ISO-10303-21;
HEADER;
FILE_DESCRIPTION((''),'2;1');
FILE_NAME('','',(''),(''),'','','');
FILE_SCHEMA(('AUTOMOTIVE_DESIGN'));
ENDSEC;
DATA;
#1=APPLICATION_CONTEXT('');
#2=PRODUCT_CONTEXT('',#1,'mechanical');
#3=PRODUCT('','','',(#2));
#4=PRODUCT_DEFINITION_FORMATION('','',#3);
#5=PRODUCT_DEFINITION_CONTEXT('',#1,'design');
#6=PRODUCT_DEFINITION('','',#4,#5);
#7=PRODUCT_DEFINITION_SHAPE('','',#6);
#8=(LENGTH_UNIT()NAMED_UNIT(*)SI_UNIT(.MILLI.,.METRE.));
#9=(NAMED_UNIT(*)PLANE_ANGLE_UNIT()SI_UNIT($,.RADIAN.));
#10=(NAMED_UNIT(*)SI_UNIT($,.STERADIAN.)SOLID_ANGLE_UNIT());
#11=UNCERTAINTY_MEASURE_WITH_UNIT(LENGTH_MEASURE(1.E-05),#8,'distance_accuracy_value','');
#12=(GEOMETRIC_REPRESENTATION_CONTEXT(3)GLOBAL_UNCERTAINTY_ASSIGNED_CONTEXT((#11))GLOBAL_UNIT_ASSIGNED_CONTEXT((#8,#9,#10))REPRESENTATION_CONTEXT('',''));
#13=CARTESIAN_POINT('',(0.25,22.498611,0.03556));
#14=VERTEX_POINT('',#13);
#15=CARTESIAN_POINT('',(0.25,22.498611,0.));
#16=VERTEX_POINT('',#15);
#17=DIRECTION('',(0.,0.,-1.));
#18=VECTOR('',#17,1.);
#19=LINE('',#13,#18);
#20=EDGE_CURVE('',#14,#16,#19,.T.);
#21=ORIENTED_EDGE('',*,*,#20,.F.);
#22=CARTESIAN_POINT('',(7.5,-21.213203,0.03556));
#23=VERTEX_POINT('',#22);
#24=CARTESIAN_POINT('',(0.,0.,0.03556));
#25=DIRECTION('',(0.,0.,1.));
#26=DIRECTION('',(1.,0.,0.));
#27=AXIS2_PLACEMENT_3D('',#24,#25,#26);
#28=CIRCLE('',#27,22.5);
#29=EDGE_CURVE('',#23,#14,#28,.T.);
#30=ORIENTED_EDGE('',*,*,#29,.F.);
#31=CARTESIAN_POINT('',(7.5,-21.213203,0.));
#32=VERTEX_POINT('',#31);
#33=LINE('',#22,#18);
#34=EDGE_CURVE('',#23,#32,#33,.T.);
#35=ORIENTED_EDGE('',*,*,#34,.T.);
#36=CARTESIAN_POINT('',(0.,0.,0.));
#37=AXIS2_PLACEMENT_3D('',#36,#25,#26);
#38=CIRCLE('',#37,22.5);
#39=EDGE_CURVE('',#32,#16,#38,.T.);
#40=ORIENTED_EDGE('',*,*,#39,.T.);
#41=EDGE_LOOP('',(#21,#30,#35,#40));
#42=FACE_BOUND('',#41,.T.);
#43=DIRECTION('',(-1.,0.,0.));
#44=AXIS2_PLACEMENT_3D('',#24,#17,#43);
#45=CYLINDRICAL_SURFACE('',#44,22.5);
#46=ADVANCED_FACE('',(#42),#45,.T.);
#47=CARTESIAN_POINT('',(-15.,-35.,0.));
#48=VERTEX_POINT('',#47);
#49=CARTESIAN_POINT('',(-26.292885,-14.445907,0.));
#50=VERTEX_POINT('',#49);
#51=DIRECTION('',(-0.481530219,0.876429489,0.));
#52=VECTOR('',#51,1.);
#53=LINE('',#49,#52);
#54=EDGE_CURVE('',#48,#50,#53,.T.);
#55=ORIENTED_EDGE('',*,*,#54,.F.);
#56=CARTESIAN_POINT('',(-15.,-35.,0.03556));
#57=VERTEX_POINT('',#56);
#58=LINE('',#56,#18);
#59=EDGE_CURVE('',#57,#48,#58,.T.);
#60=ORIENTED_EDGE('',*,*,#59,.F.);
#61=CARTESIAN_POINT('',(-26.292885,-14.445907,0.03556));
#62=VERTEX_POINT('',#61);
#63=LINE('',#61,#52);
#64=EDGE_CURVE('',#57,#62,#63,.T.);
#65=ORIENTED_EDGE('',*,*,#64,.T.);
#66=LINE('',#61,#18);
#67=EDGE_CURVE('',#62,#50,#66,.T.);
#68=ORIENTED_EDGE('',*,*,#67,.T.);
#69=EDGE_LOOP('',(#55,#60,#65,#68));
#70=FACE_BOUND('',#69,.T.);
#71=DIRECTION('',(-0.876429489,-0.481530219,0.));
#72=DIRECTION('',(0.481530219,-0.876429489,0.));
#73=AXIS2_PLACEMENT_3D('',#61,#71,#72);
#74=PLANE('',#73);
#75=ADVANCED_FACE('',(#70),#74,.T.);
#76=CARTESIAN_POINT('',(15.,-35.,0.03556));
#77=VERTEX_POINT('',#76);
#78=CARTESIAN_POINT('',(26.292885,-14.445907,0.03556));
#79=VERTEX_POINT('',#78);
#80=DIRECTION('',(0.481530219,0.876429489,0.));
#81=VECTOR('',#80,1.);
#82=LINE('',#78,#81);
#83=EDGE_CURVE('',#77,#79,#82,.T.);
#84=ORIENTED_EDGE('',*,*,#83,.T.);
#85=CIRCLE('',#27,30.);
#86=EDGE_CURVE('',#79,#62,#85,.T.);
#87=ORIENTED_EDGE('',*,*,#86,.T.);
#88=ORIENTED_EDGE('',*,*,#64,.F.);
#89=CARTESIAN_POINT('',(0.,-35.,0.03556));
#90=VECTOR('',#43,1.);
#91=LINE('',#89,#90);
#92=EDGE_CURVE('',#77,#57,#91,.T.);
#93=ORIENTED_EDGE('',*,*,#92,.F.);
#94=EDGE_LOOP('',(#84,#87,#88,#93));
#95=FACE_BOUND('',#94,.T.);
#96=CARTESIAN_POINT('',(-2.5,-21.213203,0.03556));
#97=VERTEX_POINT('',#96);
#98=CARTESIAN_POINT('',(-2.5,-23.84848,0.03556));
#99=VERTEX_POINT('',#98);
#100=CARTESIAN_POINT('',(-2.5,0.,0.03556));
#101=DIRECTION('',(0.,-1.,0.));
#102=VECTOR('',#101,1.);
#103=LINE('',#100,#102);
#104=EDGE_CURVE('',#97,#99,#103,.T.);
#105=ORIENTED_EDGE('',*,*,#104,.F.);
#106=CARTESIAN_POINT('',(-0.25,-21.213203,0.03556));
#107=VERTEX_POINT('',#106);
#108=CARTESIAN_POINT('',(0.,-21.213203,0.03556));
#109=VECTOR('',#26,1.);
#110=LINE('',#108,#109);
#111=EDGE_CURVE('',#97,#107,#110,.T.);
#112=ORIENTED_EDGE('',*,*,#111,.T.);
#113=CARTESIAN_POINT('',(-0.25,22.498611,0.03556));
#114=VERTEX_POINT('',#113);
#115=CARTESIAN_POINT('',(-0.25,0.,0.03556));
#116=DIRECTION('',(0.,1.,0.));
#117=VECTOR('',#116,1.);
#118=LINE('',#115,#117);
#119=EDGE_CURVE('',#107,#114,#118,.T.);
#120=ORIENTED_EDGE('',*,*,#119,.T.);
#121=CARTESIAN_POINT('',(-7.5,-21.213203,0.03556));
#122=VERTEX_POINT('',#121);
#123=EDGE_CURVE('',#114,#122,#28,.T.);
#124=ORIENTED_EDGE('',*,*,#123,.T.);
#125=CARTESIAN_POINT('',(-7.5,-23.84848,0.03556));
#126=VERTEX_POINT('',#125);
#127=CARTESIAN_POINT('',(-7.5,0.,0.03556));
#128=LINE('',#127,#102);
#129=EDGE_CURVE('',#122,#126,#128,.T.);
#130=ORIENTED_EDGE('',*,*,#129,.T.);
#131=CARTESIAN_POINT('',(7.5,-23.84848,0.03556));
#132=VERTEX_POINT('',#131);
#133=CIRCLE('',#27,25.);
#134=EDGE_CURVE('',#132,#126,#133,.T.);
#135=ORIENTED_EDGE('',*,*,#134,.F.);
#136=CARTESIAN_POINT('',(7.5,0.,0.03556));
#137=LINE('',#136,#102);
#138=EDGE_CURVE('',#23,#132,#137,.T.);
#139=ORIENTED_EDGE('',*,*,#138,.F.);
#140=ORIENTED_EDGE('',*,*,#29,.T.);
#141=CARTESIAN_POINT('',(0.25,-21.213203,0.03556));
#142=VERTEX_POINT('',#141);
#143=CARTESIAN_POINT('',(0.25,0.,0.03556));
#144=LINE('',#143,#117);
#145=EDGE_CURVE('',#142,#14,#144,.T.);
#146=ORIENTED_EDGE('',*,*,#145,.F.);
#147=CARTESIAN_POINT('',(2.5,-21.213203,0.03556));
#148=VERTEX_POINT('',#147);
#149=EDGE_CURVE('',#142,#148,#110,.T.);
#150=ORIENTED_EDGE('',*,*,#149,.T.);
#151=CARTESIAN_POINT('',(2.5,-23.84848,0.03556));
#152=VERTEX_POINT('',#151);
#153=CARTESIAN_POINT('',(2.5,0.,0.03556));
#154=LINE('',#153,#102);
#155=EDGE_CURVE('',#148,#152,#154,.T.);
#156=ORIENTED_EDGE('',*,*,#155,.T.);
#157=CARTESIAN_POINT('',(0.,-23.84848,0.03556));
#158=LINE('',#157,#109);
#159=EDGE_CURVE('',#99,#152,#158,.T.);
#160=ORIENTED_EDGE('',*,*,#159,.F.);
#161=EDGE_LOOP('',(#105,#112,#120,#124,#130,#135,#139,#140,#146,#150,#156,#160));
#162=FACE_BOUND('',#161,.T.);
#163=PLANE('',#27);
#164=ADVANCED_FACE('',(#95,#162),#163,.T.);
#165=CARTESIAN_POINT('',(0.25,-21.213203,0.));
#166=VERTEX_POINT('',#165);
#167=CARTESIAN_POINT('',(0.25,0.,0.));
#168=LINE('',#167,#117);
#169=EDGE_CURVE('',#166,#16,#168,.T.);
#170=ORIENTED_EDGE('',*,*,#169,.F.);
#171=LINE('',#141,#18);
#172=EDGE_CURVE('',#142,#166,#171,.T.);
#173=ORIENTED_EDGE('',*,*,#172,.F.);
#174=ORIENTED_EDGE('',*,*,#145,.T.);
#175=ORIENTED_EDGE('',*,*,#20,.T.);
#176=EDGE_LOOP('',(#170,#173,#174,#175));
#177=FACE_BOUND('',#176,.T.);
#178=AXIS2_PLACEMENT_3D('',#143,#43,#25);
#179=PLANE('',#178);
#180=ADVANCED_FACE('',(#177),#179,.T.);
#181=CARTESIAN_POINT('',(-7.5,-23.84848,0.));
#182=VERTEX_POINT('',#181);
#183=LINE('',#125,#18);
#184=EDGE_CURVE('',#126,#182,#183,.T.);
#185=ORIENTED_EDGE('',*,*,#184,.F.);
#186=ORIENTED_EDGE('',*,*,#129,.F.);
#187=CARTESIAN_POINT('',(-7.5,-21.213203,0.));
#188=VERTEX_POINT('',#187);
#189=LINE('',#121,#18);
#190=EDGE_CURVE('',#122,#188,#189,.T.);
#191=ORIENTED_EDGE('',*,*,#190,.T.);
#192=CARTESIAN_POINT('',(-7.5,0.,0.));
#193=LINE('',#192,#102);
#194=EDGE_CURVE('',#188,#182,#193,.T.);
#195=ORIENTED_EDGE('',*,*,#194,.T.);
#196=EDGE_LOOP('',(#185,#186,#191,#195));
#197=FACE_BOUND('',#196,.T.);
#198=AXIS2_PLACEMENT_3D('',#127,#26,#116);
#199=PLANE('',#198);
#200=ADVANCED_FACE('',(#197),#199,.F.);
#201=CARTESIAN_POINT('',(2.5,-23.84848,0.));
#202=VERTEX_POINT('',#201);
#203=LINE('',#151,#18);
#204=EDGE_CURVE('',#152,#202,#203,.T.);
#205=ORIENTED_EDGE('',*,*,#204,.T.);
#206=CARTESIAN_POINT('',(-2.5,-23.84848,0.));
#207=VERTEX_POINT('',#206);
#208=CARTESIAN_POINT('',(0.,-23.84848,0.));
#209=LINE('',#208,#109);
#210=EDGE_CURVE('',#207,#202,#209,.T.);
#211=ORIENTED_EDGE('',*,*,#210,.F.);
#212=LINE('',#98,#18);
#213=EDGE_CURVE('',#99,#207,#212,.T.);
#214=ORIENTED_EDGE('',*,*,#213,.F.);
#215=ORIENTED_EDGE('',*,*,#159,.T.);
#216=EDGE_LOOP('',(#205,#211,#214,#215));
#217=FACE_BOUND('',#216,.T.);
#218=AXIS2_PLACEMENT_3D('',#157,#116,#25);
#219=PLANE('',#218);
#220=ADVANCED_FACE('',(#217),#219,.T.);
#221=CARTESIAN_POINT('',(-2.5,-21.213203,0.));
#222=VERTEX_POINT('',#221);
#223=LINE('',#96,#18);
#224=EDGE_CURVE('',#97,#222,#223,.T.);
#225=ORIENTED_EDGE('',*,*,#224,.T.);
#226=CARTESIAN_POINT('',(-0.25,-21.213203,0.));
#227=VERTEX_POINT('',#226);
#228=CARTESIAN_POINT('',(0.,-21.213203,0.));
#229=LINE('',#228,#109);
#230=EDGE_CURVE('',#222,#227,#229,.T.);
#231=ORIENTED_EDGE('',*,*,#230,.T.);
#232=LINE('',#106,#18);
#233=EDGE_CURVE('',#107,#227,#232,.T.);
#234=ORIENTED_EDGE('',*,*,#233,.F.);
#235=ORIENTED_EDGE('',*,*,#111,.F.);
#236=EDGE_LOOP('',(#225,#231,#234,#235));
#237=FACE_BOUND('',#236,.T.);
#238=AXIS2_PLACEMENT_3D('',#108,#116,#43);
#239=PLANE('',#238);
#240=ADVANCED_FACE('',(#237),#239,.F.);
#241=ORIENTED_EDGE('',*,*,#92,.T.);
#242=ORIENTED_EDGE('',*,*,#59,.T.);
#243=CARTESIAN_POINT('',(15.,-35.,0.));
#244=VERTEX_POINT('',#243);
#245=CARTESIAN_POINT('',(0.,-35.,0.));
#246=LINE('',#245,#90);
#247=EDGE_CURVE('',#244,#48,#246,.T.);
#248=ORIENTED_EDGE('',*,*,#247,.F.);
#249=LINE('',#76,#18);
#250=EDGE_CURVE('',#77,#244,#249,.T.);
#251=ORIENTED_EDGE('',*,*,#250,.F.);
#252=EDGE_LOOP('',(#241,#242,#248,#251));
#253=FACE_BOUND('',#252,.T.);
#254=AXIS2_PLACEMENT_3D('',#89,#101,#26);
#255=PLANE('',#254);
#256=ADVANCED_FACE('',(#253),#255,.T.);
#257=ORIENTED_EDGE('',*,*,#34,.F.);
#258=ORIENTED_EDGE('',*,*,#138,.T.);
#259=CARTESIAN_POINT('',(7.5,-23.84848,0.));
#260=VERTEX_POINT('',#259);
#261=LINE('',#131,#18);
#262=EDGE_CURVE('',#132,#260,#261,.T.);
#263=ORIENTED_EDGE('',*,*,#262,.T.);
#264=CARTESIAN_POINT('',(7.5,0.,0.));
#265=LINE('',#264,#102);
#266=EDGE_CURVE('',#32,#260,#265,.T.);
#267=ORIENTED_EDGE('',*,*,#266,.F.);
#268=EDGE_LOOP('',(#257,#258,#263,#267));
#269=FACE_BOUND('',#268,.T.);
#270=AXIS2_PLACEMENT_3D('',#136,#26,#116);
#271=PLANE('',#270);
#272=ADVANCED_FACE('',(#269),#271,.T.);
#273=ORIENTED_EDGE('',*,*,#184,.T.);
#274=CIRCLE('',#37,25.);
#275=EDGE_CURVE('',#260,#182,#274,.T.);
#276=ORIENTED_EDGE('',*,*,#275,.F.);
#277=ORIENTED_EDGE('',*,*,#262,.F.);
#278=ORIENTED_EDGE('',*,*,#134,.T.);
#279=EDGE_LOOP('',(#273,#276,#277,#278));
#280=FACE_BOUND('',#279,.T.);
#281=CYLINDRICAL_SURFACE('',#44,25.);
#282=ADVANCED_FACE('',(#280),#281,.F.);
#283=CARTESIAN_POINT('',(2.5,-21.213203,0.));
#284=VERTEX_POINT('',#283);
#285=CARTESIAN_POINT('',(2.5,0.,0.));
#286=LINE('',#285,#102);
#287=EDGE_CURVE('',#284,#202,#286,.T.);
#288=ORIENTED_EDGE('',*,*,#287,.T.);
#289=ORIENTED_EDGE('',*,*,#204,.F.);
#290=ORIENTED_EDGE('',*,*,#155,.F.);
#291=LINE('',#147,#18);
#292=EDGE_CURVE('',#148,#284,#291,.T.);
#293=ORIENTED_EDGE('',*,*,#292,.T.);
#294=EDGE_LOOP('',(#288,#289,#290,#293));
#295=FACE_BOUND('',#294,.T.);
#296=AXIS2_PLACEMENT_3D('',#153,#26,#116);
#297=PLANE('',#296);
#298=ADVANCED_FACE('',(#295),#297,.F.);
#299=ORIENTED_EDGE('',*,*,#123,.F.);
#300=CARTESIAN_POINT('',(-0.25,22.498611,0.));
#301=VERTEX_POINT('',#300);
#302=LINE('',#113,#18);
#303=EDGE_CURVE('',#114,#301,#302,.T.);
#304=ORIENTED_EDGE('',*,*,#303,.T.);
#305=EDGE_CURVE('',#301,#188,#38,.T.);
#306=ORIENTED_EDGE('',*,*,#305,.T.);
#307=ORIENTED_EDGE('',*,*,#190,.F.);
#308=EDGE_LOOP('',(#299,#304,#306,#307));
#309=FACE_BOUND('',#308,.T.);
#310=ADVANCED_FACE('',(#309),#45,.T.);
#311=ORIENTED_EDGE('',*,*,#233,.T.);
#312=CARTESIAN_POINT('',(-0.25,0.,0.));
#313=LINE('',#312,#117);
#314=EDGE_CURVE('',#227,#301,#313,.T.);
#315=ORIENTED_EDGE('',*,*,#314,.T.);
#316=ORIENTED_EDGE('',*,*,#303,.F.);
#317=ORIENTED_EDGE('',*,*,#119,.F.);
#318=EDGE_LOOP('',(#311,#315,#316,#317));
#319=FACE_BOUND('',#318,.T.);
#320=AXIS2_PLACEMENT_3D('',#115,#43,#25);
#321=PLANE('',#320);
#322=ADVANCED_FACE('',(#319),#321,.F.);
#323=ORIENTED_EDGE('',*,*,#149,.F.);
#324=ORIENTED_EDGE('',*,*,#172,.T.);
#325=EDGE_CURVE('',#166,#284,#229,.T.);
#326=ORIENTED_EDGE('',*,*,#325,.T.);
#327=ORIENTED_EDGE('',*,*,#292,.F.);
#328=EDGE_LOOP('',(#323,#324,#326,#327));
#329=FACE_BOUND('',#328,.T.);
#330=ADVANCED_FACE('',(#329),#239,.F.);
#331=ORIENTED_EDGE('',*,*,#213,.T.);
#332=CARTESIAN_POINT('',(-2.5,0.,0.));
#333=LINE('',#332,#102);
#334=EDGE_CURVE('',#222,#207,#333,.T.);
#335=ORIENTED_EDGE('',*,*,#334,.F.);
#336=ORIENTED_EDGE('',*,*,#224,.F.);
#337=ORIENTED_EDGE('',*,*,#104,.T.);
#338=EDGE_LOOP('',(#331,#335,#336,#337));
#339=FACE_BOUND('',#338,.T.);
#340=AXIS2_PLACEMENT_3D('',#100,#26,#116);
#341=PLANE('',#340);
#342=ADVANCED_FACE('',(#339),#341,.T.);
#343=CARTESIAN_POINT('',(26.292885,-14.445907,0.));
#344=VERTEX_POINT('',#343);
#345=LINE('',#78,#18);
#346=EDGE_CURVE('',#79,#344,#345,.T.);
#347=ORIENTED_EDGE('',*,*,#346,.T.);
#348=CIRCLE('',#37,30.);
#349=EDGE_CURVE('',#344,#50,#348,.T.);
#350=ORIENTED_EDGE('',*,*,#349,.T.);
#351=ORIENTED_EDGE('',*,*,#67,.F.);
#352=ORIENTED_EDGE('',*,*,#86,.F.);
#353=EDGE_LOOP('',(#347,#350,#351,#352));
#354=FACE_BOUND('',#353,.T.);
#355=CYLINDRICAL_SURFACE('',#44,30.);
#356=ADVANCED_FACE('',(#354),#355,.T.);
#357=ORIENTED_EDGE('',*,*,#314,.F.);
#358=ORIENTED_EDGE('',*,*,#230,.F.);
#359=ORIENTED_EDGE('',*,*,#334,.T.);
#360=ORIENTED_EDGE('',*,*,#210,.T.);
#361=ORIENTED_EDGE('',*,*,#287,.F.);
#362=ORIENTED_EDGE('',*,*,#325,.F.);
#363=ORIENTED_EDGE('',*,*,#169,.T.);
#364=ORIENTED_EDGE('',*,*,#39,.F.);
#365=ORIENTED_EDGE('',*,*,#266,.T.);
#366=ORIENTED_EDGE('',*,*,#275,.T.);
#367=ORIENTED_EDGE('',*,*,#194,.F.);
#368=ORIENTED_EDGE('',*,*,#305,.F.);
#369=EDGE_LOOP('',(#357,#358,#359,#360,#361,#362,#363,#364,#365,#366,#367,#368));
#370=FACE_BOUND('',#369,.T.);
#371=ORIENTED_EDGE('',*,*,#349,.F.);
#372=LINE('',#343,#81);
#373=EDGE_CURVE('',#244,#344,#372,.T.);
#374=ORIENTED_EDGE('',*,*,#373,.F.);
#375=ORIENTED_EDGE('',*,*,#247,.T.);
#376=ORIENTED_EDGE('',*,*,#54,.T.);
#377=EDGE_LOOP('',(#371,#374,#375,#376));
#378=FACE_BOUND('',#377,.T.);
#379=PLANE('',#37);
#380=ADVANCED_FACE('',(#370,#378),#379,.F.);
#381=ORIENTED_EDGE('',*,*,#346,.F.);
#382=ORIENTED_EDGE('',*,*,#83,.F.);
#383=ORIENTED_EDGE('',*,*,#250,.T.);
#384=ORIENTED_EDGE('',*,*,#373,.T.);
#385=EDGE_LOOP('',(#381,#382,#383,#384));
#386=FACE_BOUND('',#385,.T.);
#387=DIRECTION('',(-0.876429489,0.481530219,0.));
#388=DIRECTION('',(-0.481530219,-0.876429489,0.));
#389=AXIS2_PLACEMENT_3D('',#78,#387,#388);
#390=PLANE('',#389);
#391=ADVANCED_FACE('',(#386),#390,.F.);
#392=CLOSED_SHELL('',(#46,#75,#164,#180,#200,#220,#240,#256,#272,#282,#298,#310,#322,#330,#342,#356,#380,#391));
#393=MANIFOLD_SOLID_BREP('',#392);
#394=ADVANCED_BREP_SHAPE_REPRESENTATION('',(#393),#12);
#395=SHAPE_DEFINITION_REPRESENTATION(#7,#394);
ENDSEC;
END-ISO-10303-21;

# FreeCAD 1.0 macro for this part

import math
import FreeCAD as App
import Part
import Sketcher

V = App.Vector

doc = App.newDocument("Part")
params = doc.addObject("Spreadsheet::Sheet", "Params")
for row, (alias, value) in enumerate([
    ("sketch1_radius", "30 mm"),
    ("sketch1_radius2", "25 mm"),
    ("sketch1_radius3", "22.5 mm"),
    ("sketch1_width", "30 mm"),
    ("sketch1_width2", "5 mm"),
    ("pad1_length", "0.03556 mm"),
], start=1):
    params.set(f"A{row}", alias)
    params.set(f"B{row}", "=" + value)
    params.setAlias(f"B{row}", alias)

body = doc.addObject("PartDesign::Body", "Body")

# Sketch on XY plane
sketch1 = doc.addObject("Sketcher::SketchObject", "Sketch")
body.addObject(sketch1)
sketch1.AttachmentSupport = (doc.XY_Plane, [""])
sketch1.MapMode = "FlatFace"
sketch1.addGeometry(Part.LineSegment(V(15, -35, 0), V(26.3, -14.4, 0)), False)
sketch1.addGeometry(Part.ArcOfCircle(Part.Circle(V(0, 0, 0), V(0, 0, 1), 30), math.radians(-29), math.radians(209)), False)
sketch1.addGeometry(Part.LineSegment(V(-26.3, -14.4, 0), V(-15, -35, 0)), False)
sketch1.addGeometry(Part.LineSegment(V(-15, -35, 0), V(15, -35, 0)), False)
sketch1.addGeometry(Part.ArcOfCircle(Part.Circle(V(0, 0, 0), V(0, 0, 1), 22.5), math.radians(-71), math.radians(89)), False)
sketch1.addGeometry(Part.LineSegment(V(0.2, 22.5, 0), V(0.2, -21.2, 0)), False)
sketch1.addGeometry(Part.LineSegment(V(0.2, -21.2, 0), V(2.5, -21.2, 0)), False)
sketch1.addGeometry(Part.LineSegment(V(2.5, -21.2, 0), V(2.5, -23.8, 0)), False)
sketch1.addGeometry(Part.LineSegment(V(2.5, -23.8, 0), V(-2.5, -23.8, 0)), False)
sketch1.addGeometry(Part.LineSegment(V(-2.5, -23.8, 0), V(-2.5, -21.2, 0)), False)
sketch1.addGeometry(Part.LineSegment(V(-2.5, -21.2, 0), V(-0.2, -21.2, 0)), False)
sketch1.addGeometry(Part.LineSegment(V(-0.2, -21.2, 0), V(-0.2, 22.5, 0)), False)
sketch1.addGeometry(Part.ArcOfCircle(Part.Circle(V(0, 0, 0), V(0, 0, 1), 22.5), math.radians(91), math.radians(251)), False)
sketch1.addGeometry(Part.LineSegment(V(-7.5, -21.2, 0), V(-7.5, -23.8, 0)), False)
sketch1.addGeometry(Part.ArcOfCircle(Part.Circle(V(0, 0, 0), V(0, 0, 1), 25), math.radians(-73), math.radians(253)), False)
sketch1.addGeometry(Part.LineSegment(V(7.5, -23.8, 0), V(7.5, -21.2, 0)), False)
sketch1.addConstraint(Sketcher.Constraint("Tangent", 0, 2, 1, 1))
sketch1.addConstraint(Sketcher.Constraint("Tangent", 1, 2, 2, 1))
sketch1.addConstraint(Sketcher.Constraint("Coincident", 2, 2, 3, 1))
sketch1.addConstraint(Sketcher.Constraint("Coincident", 3, 2, 0, 1))
sketch1.addConstraint(Sketcher.Constraint("Coincident", 4, 2, 5, 1))
sketch1.addConstraint(Sketcher.Constraint("Coincident", 5, 2, 6, 1))
sketch1.addConstraint(Sketcher.Constraint("Coincident", 6, 2, 7, 1))
sketch1.addConstraint(Sketcher.Constraint("Coincident", 7, 2, 8, 1))
sketch1.addConstraint(Sketcher.Constraint("Coincident", 8, 2, 9, 1))
sketch1.addConstraint(Sketcher.Constraint("Coincident", 9, 2, 10, 1))
sketch1.addConstraint(Sketcher.Constraint("Coincident", 10, 2, 11, 1))
sketch1.addConstraint(Sketcher.Constraint("Coincident", 11, 2, 12, 1))
sketch1.addConstraint(Sketcher.Constraint("Coincident", 12, 2, 13, 1))
sketch1.addConstraint(Sketcher.Constraint("Coincident", 13, 2, 14, 2))
sketch1.addConstraint(Sketcher.Constraint("Coincident", 14, 1, 15, 1))
sketch1.addConstraint(Sketcher.Constraint("Coincident", 15, 2, 4, 1))
sketch1.addConstraint(Sketcher.Constraint("Horizontal", 3))
sketch1.addConstraint(Sketcher.Constraint("Vertical", 5))
sketch1.addConstraint(Sketcher.Constraint("Horizontal", 6))
sketch1.addConstraint(Sketcher.Constraint("Vertical", 7))
sketch1.addConstraint(Sketcher.Constraint("Horizontal", 8))
sketch1.addConstraint(Sketcher.Constraint("Vertical", 9))
sketch1.addConstraint(Sketcher.Constraint("Horizontal", 10))
sketch1.addConstraint(Sketcher.Constraint("Vertical", 11))
sketch1.addConstraint(Sketcher.Constraint("Vertical", 13))
sketch1.addConstraint(Sketcher.Constraint("Vertical", 15))
sketch1.addConstraint(Sketcher.Constraint("Coincident", 1, 3, -1, 1))
sketch1.addConstraint(Sketcher.Constraint("Coincident", 4, 3, -1, 1))
sketch1.addConstraint(Sketcher.Constraint("Coincident", 12, 3, -1, 1))
sketch1.addConstraint(Sketcher.Constraint("Coincident", 14, 3, -1, 1))
sketch1.addConstraint(Sketcher.Constraint("Equal", 4, 12))
sketch1.addConstraint(Sketcher.Constraint("Symmetric", 6, 2, 9, 2, -2))
sketch1.addConstraint(Sketcher.Constraint("Horizontal", 0, 2, 1, 2))
sketch1.addConstraint(Sketcher.Constraint("Horizontal", 4, 2, 11, 2))
sketch1.addConstraint(Sketcher.Constraint("Horizontal", 10, 2, 12, 2))
sketch1.addConstraint(Sketcher.Constraint("Horizontal", 8, 2, 13, 2))
sketch1.addConstraint(Sketcher.Constraint("Horizontal", 13, 2, 14, 1))
sketch1.addConstraint(Sketcher.Constraint("Radius", 1, 30.0))
sketch1.addConstraint(Sketcher.Constraint("Radius", 14, 25.0))
sketch1.addConstraint(Sketcher.Constraint("Radius", 4, 22.5))
sketch1.addConstraint(Sketcher.Constraint("DistanceX", 3, 1, 3, 2, 30.0))
sketch1.addConstraint(Sketcher.Constraint("DistanceX", 8, 2, 8, 1, 5.0))
sketch1.addConstraint(Sketcher.Constraint("DistanceY", 2, 2, -1, 1, 35.0))
sketch1.addConstraint(Sketcher.Constraint("DistanceX", 12, 2, 9, 2, 5.0))
sketch1.addConstraint(Sketcher.Constraint("DistanceX", 6, 1, 6, 2, 2.25))
sketch1.setExpression("Constraints[37]", "Params.sketch1_radius")
sketch1.setExpression("Constraints[38]", "Params.sketch1_radius2")
sketch1.setExpression("Constraints[39]", "Params.sketch1_radius3")
sketch1.setExpression("Constraints[40]", "Params.sketch1_width")
sketch1.setExpression("Constraints[41]", "Params.sketch1_width2")
pad1 = doc.addObject("PartDesign::Pad", "Pad")
body.addObject(pad1)
pad1.Profile = sketch1
pad1.setExpression("Length", "Params.pad1_length")

doc.recompute()
